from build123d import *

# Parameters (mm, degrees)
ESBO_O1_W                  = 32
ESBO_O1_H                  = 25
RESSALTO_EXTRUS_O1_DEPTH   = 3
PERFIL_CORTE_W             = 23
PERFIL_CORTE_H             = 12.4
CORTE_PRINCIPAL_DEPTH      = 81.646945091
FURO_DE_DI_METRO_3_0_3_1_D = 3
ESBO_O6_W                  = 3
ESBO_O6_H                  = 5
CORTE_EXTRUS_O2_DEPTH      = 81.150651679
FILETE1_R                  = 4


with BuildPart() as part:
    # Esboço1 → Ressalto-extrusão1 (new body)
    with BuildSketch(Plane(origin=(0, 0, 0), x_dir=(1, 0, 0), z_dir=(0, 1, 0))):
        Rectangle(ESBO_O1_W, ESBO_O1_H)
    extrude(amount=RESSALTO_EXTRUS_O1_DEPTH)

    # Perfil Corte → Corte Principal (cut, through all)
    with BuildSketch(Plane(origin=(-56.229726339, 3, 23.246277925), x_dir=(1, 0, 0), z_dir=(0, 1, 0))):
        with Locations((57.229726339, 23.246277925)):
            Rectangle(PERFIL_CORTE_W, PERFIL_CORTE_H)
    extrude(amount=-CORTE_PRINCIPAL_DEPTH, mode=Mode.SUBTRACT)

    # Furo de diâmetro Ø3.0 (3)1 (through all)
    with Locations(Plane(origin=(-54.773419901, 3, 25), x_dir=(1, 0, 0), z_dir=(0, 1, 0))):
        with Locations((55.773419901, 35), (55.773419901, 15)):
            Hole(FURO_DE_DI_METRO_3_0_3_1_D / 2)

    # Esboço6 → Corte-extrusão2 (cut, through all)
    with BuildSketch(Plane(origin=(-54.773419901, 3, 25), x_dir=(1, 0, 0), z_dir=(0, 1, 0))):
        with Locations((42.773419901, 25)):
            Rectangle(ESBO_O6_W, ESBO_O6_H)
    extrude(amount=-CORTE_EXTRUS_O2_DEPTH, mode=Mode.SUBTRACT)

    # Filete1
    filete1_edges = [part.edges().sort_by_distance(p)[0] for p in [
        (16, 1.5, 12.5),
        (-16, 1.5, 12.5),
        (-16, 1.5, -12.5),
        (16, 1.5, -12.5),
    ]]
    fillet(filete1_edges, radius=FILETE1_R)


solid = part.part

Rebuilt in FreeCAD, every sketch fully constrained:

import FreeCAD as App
import Part
import Sketcher


def edges_at(feature, points):
    """Names of the edges that pass closest to the given points."""
    edges = feature.Shape.Edges
    near = lambda p: min(range(len(edges)), key=lambda i: edges[i].distToShape(Part.Vertex(*p))[0])
    return sorted({f"Edge{near(p) + 1}" for p in points})

doc = App.newDocument("Part")
params = doc.addObject("Spreadsheet::Sheet", "Params")
for row, (alias, value) in enumerate([
    ("sketch1_width", "32 mm"),
    ("sketch1_height", "25 mm"),
    ("pad1_length", "3 mm"),
    ("sketch2_width", "23 mm"),
    ("sketch2_height", "12.4 mm"),
    ("sketch3_diameter", "3 mm"),
    ("hole_diameter", "3 mm"),
    ("sketch4_width", "3 mm"),
    ("sketch4_height", "5 mm"),
    ("fillet_radius", "4 mm"),
], start=1):
    params.set(f"A{row}", alias)
    params.set(f"B{row}", "=" + value)
    params.setAlias(f"B{row}", alias)

body = doc.addObject("PartDesign::Body", "Body")

# Sketch on XZ plane
sketch1 = doc.addObject("Sketcher::SketchObject", "Sketch")
body.addObject(sketch1)
sketch1.AttachmentSupport = (doc.XZ_Plane, [""])
sketch1.MapMode = "FlatFace"
sketch1.addGeometry([
    Part.LineSegment(App.Vector(-16, -12, 0), App.Vector(-16, 12, 0)),
    Part.LineSegment(App.Vector(-16, 12, 0), App.Vector(16, 12, 0)),
    Part.LineSegment(App.Vector(16, 12, 0), App.Vector(16, -12, 0)),
    Part.LineSegment(App.Vector(16, -12, 0), App.Vector(-16, -12, 0)),
], False)
sketch1.addConstraint([
    Sketcher.Constraint("Coincident", 0, 2, 1, 1),
    Sketcher.Constraint("Coincident", 1, 2, 2, 1),
    Sketcher.Constraint("Coincident", 2, 2, 3, 1),
    Sketcher.Constraint("Coincident", 3, 2, 0, 1),
    Sketcher.Constraint("Vertical", 0),
    Sketcher.Constraint("Horizontal", 1),
    Sketcher.Constraint("Vertical", 2),
    Sketcher.Constraint("Horizontal", 3),
    Sketcher.Constraint("Symmetric", 0, 2, 2, 2, -1, 1),
    Sketcher.Constraint("DistanceX", 1, 1, 1, 2, 32.0),
    Sketcher.Constraint("DistanceY", 0, 1, 0, 2, 25.0),
])
sketch1.setExpression("Constraints[9]", "Params.sketch1_width")
sketch1.setExpression("Constraints[10]", "Params.sketch1_height")
pad1 = doc.addObject("PartDesign::Pad", "Pad")
body.addObject(pad1)
pad1.Profile = sketch1
pad1.setExpression("Length", "Params.pad1_length")
pad1.Reversed = True

# Sketch on XZ plane
sketch2 = doc.addObject("Sketcher::SketchObject", "Sketch001")
body.addObject(sketch2)
sketch2.AttachmentSupport = (doc.XZ_Plane, [""])
sketch2.MapMode = "FlatFace"
sketch2.AttachmentOffset = App.Placement(App.Vector(0, 0, -3), App.Rotation())
sketch2.addGeometry([
    Part.LineSegment(App.Vector(-10, -6, 0), App.Vector(-10, 6, 0)),
    Part.LineSegment(App.Vector(-10, 6, 0), App.Vector(12, 6, 0)),
    Part.LineSegment(App.Vector(12, 6, 0), App.Vector(12, -6, 0)),
    Part.LineSegment(App.Vector(12, -6, 0), App.Vector(-10, -6, 0)),
], False)
sketch2.addConstraint([
    Sketcher.Constraint("Coincident", 0, 2, 1, 1),
    Sketcher.Constraint("Coincident", 1, 2, 2, 1),
    Sketcher.Constraint("Coincident", 2, 2, 3, 1),
    Sketcher.Constraint("Coincident", 3, 2, 0, 1),
    Sketcher.Constraint("Vertical", 0),
    Sketcher.Constraint("Horizontal", 1),
    Sketcher.Constraint("Vertical", 2),
    Sketcher.Constraint("Horizontal", 3),
    Sketcher.Constraint("DistanceX", 1, 1, 1, 2, 23.0),
    Sketcher.Constraint("DistanceY", 0, 1, 0, 2, 12.4),
    Sketcher.Constraint("DistanceX", 0, 2, -1, 1, 10.5),
    Sketcher.Constraint("DistanceY", -1, 1, 0, 2, 6.2),
])
sketch2.setExpression("Constraints[8]", "Params.sketch2_width")
sketch2.setExpression("Constraints[9]", "Params.sketch2_height")
pocket1 = doc.addObject("PartDesign::Pocket", "Pocket")
body.addObject(pocket1)
pocket1.Profile = sketch2
pocket1.Type = "ThroughAll"
pocket1.Reversed = True

# Sketch on XZ plane
sketch3 = doc.addObject("Sketcher::SketchObject", "Sketch002")
body.addObject(sketch3)
sketch3.AttachmentSupport = (doc.XZ_Plane, [""])
sketch3.MapMode = "FlatFace"
sketch3.AttachmentOffset = App.Placement(App.Vector(0, 0, -3), App.Rotation())
sketch3.addGeometry([
    Part.Circle(App.Vector(1, -10, 0), App.Vector(0, 0, 1), 1.5),
    Part.Circle(App.Vector(1, 10, 0), App.Vector(0, 0, 1), 1.5),
], False)
sketch3.addConstraint([
    Sketcher.Constraint("Equal", 0, 1),
    Sketcher.Constraint("Symmetric", 0, 3, 1, 3, -1),
    Sketcher.Constraint("Diameter", 0, 3.0),
    Sketcher.Constraint("DistanceX", -1, 1, 0, 3, 1.0),
    Sketcher.Constraint("DistanceY", 0, 3, -1, 1, 10.0),
])
sketch3.setExpression("Constraints[2]", "Params.sketch3_diameter")
doc.recompute()
hole = doc.addObject("PartDesign::Hole", "Hole")
body.addObject(hole)
hole.Profile = sketch3
hole.ThreadType = "None"
hole.setExpression("Diameter", "Params.hole_diameter")
hole.DepthType = "ThroughAll"
hole.Reversed = True

# Sketch on XZ plane
sketch4 = doc.addObject("Sketcher::SketchObject", "Sketch003")
body.addObject(sketch4)
sketch4.AttachmentSupport = (doc.XZ_Plane, [""])
sketch4.MapMode = "FlatFace"
sketch4.AttachmentOffset = App.Placement(App.Vector(0, 0, -3), App.Rotation())
sketch4.addGeometry([
    Part.LineSegment(App.Vector(-13.5, -2.5, 0), App.Vector(-13.5, 2.5, 0)),
    Part.LineSegment(App.Vector(-13.5, 2.5, 0), App.Vector(-10.5, 2.5, 0)),
    Part.LineSegment(App.Vector(-10.5, 2.5, 0), App.Vector(-10.5, -2.5, 0)),
    Part.LineSegment(App.Vector(-10.5, -2.5, 0), App.Vector(-13.5, -2.5, 0)),
], False)
sketch4.addConstraint([
    Sketcher.Constraint("Coincident", 0, 2, 1, 1),
    Sketcher.Constraint("Coincident", 1, 2, 2, 1),
    Sketcher.Constraint("Coincident", 2, 2, 3, 1),
    Sketcher.Constraint("Coincident", 3, 2, 0, 1),
    Sketcher.Constraint("Vertical", 0),
    Sketcher.Constraint("Horizontal", 1),
    Sketcher.Constraint("Vertical", 2),
    Sketcher.Constraint("Horizontal", 3),
    Sketcher.Constraint("DistanceX", 1, 1, 1, 2, 3.0),
    Sketcher.Constraint("DistanceY", 0, 1, 0, 2, 5.0),
    Sketcher.Constraint("DistanceX", 0, 2, -1, 1, 13.5),
    Sketcher.Constraint("DistanceY", -1, 1, 0, 2, 2.5),
])
sketch4.setExpression("Constraints[8]", "Params.sketch4_width")
sketch4.setExpression("Constraints[9]", "Params.sketch4_height")
pocket2 = doc.addObject("PartDesign::Pocket", "Pocket001")
body.addObject(pocket2)
pocket2.Profile = sketch4
pocket2.Type = "ThroughAll"
pocket2.Reversed = True
doc.recompute()

fillet = doc.addObject("PartDesign::Fillet", "Fillet")
body.addObject(fillet)
fillet.Base = (pocket2, edges_at(pocket2, [
    (16, 1.5, 12.5),
    (-16, 1.5, 12.5),
    (-16, 1.5, -12.5),
    (16, 1.5, -12.5),
]))
fillet.setExpression("Radius", "Params.fillet_radius")

doc.recompute()
